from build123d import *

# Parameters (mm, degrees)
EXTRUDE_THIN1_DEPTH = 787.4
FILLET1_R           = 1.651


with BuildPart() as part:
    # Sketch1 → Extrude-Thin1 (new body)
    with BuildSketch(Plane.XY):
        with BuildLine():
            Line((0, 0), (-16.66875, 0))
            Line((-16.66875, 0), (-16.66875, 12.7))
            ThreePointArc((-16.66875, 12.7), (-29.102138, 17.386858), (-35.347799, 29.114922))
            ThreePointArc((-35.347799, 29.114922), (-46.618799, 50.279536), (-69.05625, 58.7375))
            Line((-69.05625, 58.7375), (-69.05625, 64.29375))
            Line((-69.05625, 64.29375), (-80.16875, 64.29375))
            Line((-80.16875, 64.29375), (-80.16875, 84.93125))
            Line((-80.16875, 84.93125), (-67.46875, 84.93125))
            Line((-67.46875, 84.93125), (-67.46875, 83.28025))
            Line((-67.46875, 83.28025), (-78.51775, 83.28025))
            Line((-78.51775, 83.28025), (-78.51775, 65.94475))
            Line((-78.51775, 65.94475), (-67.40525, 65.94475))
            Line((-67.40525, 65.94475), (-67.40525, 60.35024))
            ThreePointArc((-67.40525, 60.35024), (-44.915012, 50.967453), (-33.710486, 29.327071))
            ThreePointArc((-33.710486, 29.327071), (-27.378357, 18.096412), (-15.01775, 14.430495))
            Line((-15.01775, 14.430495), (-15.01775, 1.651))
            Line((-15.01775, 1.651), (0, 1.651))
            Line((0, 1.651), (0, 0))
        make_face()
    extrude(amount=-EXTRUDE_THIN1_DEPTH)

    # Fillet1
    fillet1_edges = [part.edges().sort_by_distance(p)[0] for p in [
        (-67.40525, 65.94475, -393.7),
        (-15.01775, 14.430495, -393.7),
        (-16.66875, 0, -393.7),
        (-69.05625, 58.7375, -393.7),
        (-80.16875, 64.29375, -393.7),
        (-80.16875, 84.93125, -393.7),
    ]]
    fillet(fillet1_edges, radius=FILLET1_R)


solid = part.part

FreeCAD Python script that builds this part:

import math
import FreeCAD as App
import Part
import Sketcher

V = App.Vector
Q = App.Units.Quantity


def edges_at(feature, points):
    """Names of the edges that pass closest to the given points."""
    edges = feature.Shape.Edges
    near = lambda p: min(range(len(edges)), key=lambda i: edges[i].distToShape(Part.Vertex(*p))[0])
    return sorted({f"Edge{near(p) + 1}" for p in points})

doc = App.newDocument("Part")
body = doc.addObject("PartDesign::Body", "Body")

sketch1 = doc.addObject("Sketcher::SketchObject", "Sketch")
body.addObject(sketch1)
sketch1.AttachmentSupport = (doc.XY_Plane, [""])
sketch1.MapMode = "FlatFace"
sketch1.addGeometry([
    Part.LineSegment(V(-16.7, 0, 0), V(0, 0, 0)),
    Part.LineSegment(V(0, 0, 0), V(0, 1.7, 0)),
    Part.LineSegment(V(0, 1.7, 0), V(-15, 1.7, 0)),
    Part.LineSegment(V(-15, 1.7, 0), V(-15, 14.4, 0)),
    Part.ArcOfCircle(Part.Circle(V(-16.7, 31.5, 0), V(0, 0, 1), 17.2), math.radians(-173), math.radians(-84)),
    Part.ArcOfCircle(Part.Circle(V(-69.1, 24.7, 0), V(0, 0, 1), 35.6), math.radians(7), math.radians(87)),
    Part.LineSegment(V(-67.4, 60.4, 0), V(-67.4, 65.9, 0)),
    Part.LineSegment(V(-67.4, 65.9, 0), V(-78.5, 65.9, 0)),
    Part.LineSegment(V(-78.5, 65.9, 0), V(-78.5, 83.3, 0)),
    Part.LineSegment(V(-78.5, 83.3, 0), V(-67.5, 83.3, 0)),
    Part.LineSegment(V(-67.5, 83.3, 0), V(-67.5, 84.9, 0)),
    Part.LineSegment(V(-67.5, 84.9, 0), V(-80.2, 84.9, 0)),
    Part.LineSegment(V(-80.2, 84.9, 0), V(-80.2, 64.3, 0)),
    Part.LineSegment(V(-80.2, 64.3, 0), V(-69.1, 64.3, 0)),
    Part.LineSegment(V(-69.1, 64.3, 0), V(-69.1, 58.7, 0)),
    Part.ArcOfCircle(Part.Circle(V(-69.1, 24.7, 0), V(0, 0, 1), 34), math.radians(7), math.radians(90)),
    Part.ArcOfCircle(Part.Circle(V(-16.7, 31.5, 0), V(0, 0, 1), 18.8), math.radians(-173), math.radians(-90)),
    Part.LineSegment(V(-16.7, 12.7, 0), V(-16.7, 0, 0)),
], False)
sketch1.addConstraint([
    Sketcher.Constraint("Coincident", 0, 2, 1, 1),
    Sketcher.Constraint("Coincident", 1, 2, 2, 1),
    Sketcher.Constraint("Coincident", 2, 2, 3, 1),
    Sketcher.Constraint("Coincident", 3, 2, 4, 2),
    Sketcher.Constraint("Tangent", 4, 1, 5, 1),
    Sketcher.Constraint("Coincident", 5, 2, 6, 1),
    Sketcher.Constraint("Coincident", 6, 2, 7, 1),
    Sketcher.Constraint("Coincident", 7, 2, 8, 1),
    Sketcher.Constraint("Coincident", 8, 2, 9, 1),
    Sketcher.Constraint("Coincident", 9, 2, 10, 1),
    Sketcher.Constraint("Coincident", 10, 2, 11, 1),
    Sketcher.Constraint("Coincident", 11, 2, 12, 1),
    Sketcher.Constraint("Coincident", 12, 2, 13, 1),
    Sketcher.Constraint("Coincident", 13, 2, 14, 1),
    Sketcher.Constraint("Coincident", 14, 2, 15, 2),
    Sketcher.Constraint("Tangent", 15, 1, 16, 1),
    Sketcher.Constraint("Coincident", 16, 2, 17, 1),
    Sketcher.Constraint("Coincident", 17, 2, 0, 1),
    Sketcher.Constraint("Horizontal", 0),
    Sketcher.Constraint("Vertical", 1),
    Sketcher.Constraint("Horizontal", 2),
    Sketcher.Constraint("Vertical", 3),
    Sketcher.Constraint("Vertical", 6),
    Sketcher.Constraint("Horizontal", 7),
    Sketcher.Constraint("Vertical", 8),
    Sketcher.Constraint("Horizontal", 9),
    Sketcher.Constraint("Vertical", 10),
    Sketcher.Constraint("Horizontal", 11),
    Sketcher.Constraint("Vertical", 12),
    Sketcher.Constraint("Horizontal", 13),
    Sketcher.Constraint("Vertical", 14),
    Sketcher.Constraint("Vertical", 17),
    Sketcher.Constraint("Coincident", 0, 2, -1, 1),
    Sketcher.Constraint("Coincident", 15, 3, 5, 3),
    Sketcher.Constraint("Coincident", 16, 3, 4, 3),
    Sketcher.Constraint("Vertical", 15, 3, 13, 2),
    Sketcher.Constraint("Vertical", 4, 3, 16, 2),
    Sketcher.Constraint("Equal", 7, 13),
    Sketcher.Constraint("Equal", 1, 10),
    Sketcher.Constraint("Equal", 11, 17),
    Sketcher.Constraint("DistanceX", 11, 2, 11, 1, Q("0.5 in")),
    Sketcher.Constraint("DistanceX", 0, 1, 0, 2, Q("0.65625 in")),
    Sketcher.Constraint("DistanceX", 7, 2, 7, 1, Q("0.4375 in")),
    Sketcher.Constraint("DistanceX", 9, 1, 9, 2, Q("0.435 in")),
    Sketcher.Constraint("DistanceY", 1, 1, 1, 2, Q("0.065 in")),
    Sketcher.Constraint("DistanceY", 12, 2, 12, 1, Q("0.8125 in")),
    Sketcher.Constraint("DistanceY", 14, 2, 14, 1, Q("0.21875 in")),
    Sketcher.Constraint("DistanceY", 8, 1, 8, 2, Q("0.6825 in")),
    Sketcher.Constraint("DistanceX", 5, 3, -1, 1, Q("2.71875 in")),
    Sketcher.Constraint("DistanceY", -1, 1, 10, 2, Q("3.34375 in")),
    Sketcher.Constraint("DistanceX", 4, 3, 2, 2, Q("0.065 in")),
    Sketcher.Constraint("Radius", 4, 17.184195),
    Sketcher.Constraint("Radius", 15, 33.990236),
])
pad1 = doc.addObject("PartDesign::Pad", "Pad")
body.addObject(pad1)
pad1.Profile = sketch1
pad1.Length = Q("31 in")
pad1.Reversed = True
doc.recompute()

fillet = doc.addObject("PartDesign::Fillet", "Fillet")
body.addObject(fillet)
fillet.Base = (pad1, edges_at(pad1, [
    (-67.405, 65.945, -393.7),
    (-15.018, 14.43, -393.7),
    (-16.669, 0, -393.7),
    (-69.056, 58.737, -393.7),
    (-80.169, 64.294, -393.7),
    (-80.169, 84.931, -393.7),
]))
fillet.Radius = Q("0.065 in")

doc.recompute()
